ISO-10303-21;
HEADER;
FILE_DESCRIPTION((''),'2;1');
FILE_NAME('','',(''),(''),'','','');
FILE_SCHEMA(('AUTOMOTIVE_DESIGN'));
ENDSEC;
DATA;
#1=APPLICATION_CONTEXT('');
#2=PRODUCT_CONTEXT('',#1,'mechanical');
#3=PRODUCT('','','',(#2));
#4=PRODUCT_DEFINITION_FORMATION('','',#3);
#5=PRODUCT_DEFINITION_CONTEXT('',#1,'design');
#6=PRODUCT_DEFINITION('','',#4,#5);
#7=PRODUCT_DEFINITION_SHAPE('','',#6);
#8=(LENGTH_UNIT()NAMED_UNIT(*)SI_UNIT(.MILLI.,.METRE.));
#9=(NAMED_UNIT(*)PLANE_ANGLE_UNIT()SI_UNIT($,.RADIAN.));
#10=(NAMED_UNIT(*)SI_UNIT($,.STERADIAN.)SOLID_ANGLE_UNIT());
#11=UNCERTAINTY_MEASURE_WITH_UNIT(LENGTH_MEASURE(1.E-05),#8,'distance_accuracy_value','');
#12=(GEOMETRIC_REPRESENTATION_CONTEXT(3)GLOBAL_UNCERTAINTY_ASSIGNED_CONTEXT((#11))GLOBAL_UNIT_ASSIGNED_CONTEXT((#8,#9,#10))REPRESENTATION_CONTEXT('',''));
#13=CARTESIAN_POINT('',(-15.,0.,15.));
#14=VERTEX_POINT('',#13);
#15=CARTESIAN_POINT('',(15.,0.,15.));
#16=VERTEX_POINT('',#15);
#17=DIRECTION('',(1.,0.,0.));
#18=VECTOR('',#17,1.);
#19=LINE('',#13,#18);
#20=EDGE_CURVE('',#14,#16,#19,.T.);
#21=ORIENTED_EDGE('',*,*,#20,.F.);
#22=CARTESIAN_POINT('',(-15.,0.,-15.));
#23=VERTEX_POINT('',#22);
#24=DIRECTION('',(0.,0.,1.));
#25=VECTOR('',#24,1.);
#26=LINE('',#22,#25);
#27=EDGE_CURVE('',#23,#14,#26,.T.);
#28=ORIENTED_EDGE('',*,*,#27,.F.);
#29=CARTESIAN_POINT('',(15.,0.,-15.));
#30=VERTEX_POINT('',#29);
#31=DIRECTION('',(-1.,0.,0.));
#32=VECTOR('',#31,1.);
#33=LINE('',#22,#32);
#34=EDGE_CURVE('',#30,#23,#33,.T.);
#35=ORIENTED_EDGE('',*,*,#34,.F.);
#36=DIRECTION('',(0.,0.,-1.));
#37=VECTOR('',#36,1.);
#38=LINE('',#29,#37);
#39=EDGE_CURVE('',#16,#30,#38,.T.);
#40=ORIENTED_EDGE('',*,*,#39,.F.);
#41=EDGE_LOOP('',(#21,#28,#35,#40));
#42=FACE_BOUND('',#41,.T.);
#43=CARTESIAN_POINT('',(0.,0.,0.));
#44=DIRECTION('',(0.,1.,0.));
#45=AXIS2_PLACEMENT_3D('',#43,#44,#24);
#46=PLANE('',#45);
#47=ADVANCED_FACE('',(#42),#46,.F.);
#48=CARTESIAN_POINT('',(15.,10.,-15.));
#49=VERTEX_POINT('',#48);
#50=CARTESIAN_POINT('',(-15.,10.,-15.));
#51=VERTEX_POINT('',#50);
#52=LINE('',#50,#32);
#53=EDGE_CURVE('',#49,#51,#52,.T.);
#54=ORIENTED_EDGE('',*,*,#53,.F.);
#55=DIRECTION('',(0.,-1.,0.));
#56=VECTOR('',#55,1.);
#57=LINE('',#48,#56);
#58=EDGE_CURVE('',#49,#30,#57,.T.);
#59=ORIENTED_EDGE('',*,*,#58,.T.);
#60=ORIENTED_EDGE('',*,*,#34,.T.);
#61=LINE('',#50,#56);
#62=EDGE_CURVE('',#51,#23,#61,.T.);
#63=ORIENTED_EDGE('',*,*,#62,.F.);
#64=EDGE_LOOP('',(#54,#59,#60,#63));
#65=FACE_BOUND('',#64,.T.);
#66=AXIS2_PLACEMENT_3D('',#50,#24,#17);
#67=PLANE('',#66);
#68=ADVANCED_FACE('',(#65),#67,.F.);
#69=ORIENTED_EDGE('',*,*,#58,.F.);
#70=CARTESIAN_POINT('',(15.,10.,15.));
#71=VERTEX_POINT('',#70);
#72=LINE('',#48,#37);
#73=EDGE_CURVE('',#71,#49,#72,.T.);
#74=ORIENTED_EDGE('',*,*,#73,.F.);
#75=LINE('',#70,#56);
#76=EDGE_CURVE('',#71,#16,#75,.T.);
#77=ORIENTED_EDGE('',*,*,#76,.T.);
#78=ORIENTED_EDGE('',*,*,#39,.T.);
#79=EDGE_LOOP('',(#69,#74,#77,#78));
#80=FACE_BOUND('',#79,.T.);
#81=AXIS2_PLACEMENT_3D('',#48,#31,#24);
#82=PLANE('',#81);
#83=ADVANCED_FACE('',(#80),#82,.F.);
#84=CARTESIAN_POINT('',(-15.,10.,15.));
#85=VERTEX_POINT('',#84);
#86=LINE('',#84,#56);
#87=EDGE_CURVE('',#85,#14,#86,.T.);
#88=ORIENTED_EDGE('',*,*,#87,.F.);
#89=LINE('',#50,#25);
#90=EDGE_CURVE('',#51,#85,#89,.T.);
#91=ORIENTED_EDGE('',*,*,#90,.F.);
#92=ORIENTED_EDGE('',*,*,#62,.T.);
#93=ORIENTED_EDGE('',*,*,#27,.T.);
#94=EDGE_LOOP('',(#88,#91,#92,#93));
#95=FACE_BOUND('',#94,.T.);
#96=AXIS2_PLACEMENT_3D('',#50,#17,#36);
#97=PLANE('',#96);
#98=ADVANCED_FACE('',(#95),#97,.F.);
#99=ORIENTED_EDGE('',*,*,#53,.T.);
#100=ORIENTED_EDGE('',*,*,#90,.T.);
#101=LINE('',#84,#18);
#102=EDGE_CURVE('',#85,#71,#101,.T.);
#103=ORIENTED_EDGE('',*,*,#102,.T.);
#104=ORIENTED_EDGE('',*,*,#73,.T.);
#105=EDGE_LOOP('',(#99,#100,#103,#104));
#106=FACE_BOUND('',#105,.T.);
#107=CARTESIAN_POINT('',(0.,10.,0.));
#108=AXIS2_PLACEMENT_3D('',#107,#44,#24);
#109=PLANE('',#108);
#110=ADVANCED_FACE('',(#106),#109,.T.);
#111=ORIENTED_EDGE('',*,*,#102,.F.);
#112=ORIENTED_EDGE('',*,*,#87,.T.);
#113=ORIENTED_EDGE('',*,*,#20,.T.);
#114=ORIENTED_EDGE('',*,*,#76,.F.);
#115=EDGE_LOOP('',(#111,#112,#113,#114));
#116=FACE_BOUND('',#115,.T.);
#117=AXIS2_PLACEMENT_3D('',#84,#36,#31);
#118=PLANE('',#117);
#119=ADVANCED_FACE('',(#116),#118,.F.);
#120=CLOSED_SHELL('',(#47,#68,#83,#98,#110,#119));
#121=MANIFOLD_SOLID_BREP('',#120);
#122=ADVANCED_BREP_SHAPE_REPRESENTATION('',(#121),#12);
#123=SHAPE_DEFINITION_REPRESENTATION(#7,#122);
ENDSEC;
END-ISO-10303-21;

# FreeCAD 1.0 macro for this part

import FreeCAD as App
import Part
import Sketcher


def add_polygon(sketch, points):
    """Adds a closed chain of lines whose ends are joined by coincident constraints."""
    first, n = sketch.GeometryCount, len(points)
    for a, b in zip(points, points[1:] + points[:1]):
        sketch.addGeometry(Part.LineSegment(App.Vector(*a, 0), App.Vector(*b, 0)), False)
    for i in range(n):
        sketch.addConstraint(Sketcher.Constraint("Coincident", first + i, 2, first + (i + 1) % n, 1))

doc = App.newDocument("Part")
body = doc.addObject("PartDesign::Body", "Body")

sketch1 = doc.addObject("Sketcher::SketchObject", "Sketch")
body.addObject(sketch1)
sketch1.AttachmentSupport = (doc.XZ_Plane, [""])
sketch1.MapMode = "FlatFace"
add_polygon(sketch1, [(-15, -15), (-15, 15), (15, 15), (15, -15)])
sketch1.addConstraint(Sketcher.Constraint("Vertical", 0))
sketch1.addConstraint(Sketcher.Constraint("Horizontal", 1))
sketch1.addConstraint(Sketcher.Constraint("Vertical", 2))
sketch1.addConstraint(Sketcher.Constraint("Horizontal", 3))
sketch1.addConstraint(Sketcher.Constraint("Symmetric", 0, 2, 2, 2, -1, 1))
sketch1.addConstraint(Sketcher.Constraint("Equal", 3, 0))
sketch1.addConstraint(Sketcher.Constraint("DistanceX", 1, 1, 1, 2, 30.0))
pad1 = doc.addObject("PartDesign::Pad", "Pad")
body.addObject(pad1)
pad1.Profile = sketch1
pad1.Length = 10
pad1.Reversed = True

doc.recompute()
